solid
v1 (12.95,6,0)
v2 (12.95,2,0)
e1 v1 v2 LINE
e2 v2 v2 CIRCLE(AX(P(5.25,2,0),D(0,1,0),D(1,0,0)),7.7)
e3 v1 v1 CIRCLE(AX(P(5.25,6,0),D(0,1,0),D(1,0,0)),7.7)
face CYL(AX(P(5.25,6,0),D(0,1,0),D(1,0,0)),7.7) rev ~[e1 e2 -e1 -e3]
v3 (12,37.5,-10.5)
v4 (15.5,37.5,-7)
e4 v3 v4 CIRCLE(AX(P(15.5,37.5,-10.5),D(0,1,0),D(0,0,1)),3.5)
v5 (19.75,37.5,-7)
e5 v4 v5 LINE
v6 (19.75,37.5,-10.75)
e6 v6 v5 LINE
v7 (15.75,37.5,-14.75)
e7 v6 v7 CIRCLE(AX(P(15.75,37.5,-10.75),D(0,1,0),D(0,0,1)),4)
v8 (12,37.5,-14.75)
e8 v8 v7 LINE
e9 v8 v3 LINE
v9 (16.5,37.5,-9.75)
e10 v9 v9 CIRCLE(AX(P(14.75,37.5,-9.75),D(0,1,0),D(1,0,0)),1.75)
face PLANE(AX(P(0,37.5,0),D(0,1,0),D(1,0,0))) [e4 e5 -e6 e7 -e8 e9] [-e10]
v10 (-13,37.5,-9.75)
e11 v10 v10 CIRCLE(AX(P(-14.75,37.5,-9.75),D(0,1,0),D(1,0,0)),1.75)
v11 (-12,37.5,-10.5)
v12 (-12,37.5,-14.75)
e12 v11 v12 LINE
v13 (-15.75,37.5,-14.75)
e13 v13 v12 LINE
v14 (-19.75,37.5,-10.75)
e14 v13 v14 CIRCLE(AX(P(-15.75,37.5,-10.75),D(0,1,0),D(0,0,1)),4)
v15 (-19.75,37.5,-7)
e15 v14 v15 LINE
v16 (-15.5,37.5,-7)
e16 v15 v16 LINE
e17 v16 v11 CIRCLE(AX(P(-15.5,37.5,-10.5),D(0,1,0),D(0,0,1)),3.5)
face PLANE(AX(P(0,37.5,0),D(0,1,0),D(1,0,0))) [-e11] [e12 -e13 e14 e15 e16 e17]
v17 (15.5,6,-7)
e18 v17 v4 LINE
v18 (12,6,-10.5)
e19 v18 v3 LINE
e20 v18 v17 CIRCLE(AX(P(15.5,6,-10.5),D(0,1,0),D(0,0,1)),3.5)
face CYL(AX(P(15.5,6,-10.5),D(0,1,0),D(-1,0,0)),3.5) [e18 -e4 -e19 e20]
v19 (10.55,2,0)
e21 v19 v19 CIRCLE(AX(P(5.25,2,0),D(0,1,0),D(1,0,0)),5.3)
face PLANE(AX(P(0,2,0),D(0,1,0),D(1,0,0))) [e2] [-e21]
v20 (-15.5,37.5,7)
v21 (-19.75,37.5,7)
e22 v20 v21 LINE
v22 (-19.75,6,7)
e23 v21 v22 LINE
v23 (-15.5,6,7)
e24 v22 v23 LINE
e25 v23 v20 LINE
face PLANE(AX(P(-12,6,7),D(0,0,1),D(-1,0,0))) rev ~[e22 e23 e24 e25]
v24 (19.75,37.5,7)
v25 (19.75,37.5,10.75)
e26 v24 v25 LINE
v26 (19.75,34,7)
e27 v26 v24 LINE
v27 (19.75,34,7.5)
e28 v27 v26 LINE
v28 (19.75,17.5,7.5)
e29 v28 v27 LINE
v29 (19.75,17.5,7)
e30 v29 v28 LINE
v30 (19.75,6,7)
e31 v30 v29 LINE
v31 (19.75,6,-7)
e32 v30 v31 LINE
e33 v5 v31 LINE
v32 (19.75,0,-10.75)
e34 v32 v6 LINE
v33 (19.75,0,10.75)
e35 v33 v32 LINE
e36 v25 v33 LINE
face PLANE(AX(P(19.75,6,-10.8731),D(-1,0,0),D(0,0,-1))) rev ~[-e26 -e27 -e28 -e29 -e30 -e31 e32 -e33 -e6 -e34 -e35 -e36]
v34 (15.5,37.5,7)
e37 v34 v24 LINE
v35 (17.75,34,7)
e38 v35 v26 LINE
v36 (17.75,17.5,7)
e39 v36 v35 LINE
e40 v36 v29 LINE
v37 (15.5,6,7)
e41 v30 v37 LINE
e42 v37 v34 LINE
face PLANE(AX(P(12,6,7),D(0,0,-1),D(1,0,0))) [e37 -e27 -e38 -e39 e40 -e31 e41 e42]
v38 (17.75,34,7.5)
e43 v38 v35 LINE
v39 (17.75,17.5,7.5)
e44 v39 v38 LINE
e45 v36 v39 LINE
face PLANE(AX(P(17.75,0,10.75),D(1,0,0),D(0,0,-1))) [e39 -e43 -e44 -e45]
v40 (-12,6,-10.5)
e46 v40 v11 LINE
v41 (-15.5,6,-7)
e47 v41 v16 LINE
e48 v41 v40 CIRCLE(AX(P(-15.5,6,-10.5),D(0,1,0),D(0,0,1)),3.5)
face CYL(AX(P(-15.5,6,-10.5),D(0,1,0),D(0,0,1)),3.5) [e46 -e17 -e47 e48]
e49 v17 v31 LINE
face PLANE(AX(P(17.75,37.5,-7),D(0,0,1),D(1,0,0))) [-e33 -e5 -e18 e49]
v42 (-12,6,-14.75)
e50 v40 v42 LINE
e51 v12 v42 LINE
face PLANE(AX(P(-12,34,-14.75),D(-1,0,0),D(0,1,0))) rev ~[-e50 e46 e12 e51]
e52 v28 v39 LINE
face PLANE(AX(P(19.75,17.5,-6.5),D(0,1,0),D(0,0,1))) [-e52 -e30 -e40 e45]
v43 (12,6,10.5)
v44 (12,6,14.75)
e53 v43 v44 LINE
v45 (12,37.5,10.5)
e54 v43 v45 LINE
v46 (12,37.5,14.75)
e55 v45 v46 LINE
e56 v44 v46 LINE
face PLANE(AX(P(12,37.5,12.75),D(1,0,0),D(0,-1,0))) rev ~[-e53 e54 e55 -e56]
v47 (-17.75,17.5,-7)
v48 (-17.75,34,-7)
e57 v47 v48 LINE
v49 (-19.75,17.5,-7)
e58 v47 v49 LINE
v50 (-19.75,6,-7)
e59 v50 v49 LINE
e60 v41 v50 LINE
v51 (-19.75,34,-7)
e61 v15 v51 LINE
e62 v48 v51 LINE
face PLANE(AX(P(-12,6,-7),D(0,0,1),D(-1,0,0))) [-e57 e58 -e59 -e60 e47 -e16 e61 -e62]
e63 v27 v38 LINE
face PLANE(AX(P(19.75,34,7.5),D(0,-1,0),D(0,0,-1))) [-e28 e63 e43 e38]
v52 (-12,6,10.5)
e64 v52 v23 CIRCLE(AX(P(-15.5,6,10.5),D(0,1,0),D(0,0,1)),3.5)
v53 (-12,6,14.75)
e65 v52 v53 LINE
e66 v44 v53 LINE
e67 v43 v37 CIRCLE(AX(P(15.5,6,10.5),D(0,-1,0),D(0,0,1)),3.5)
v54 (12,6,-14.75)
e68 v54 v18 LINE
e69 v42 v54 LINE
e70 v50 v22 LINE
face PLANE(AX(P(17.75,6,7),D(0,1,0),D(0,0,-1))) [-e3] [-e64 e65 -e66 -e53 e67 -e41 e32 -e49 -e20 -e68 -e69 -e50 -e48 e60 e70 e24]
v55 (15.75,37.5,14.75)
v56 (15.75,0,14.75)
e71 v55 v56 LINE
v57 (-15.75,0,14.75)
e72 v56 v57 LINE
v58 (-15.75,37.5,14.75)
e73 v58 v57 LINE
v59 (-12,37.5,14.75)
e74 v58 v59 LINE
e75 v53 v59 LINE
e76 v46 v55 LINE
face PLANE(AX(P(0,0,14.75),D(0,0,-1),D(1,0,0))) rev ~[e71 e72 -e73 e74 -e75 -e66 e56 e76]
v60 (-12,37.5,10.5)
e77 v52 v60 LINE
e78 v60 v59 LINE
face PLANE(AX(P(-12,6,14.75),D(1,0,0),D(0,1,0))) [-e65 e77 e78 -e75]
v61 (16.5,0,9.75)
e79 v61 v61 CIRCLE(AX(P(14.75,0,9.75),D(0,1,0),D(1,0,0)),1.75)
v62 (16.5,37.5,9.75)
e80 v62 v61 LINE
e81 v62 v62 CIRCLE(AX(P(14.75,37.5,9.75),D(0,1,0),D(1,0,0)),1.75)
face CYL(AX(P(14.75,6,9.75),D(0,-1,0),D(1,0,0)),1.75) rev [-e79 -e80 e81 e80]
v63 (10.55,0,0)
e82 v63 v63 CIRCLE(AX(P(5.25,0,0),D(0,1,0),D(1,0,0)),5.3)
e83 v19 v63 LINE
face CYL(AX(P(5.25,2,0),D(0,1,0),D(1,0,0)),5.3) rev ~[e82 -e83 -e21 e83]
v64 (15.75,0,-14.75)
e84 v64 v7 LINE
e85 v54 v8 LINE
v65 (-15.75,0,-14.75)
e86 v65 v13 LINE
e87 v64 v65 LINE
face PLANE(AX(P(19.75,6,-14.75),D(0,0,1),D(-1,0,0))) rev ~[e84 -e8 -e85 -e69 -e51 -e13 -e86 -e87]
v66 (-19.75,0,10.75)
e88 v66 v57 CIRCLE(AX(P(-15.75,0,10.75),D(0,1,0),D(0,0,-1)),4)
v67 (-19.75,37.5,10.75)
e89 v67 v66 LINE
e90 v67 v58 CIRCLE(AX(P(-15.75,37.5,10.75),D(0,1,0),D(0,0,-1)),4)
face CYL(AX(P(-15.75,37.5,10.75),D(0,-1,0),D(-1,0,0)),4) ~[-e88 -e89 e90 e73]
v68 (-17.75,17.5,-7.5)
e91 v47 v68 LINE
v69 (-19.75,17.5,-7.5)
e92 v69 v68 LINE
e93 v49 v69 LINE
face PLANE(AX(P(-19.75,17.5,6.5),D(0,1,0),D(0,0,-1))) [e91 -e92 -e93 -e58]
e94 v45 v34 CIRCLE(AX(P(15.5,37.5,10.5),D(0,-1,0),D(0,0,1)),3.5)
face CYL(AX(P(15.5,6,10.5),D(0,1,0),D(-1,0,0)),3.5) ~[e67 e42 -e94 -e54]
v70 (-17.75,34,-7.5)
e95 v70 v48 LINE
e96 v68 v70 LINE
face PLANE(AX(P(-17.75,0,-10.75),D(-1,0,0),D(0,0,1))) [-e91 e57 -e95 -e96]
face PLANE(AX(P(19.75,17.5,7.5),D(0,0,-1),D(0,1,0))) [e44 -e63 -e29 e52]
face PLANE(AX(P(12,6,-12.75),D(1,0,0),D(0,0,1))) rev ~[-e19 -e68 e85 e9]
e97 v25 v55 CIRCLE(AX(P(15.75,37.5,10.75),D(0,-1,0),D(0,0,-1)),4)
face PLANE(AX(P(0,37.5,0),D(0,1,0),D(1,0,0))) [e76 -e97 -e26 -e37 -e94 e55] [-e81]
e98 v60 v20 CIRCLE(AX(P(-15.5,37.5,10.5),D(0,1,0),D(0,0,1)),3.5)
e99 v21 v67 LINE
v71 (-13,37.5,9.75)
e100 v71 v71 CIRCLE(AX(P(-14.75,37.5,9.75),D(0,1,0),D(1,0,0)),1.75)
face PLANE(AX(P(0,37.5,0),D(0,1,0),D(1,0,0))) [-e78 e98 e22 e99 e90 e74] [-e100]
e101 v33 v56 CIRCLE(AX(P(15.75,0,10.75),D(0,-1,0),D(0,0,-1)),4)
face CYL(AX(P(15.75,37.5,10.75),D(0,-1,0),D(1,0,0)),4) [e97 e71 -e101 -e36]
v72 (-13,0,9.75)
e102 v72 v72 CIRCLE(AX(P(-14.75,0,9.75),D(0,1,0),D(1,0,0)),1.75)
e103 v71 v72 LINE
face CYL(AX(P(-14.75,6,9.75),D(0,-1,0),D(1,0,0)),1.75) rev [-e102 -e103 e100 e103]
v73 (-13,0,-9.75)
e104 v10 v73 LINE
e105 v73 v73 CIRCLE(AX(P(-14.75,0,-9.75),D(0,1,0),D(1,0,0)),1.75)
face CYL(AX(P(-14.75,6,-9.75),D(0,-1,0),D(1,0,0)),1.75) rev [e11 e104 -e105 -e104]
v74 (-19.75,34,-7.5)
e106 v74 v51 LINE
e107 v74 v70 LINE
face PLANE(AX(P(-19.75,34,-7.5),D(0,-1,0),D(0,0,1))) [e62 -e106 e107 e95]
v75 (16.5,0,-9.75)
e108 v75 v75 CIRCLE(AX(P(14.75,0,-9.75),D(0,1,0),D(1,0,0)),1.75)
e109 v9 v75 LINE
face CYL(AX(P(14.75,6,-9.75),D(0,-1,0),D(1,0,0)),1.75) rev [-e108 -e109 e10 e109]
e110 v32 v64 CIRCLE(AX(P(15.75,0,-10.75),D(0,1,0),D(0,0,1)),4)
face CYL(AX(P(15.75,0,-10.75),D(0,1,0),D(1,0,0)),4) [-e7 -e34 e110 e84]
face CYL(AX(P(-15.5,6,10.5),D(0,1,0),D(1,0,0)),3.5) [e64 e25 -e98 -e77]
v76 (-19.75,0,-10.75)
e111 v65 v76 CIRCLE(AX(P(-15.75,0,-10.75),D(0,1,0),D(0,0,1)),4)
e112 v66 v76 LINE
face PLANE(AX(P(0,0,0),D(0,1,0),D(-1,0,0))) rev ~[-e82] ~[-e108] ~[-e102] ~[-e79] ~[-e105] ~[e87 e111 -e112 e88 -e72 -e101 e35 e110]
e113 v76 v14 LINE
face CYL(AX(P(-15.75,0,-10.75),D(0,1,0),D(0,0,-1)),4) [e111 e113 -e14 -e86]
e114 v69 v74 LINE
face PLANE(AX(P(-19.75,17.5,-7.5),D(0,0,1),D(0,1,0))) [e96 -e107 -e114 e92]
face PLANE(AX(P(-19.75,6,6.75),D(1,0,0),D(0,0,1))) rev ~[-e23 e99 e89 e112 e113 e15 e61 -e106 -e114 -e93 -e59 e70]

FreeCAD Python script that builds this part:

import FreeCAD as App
import Part
import Sketcher
Q = App.Units.Quantity


def edges_at(feature, points):
    """Names of the edges that pass closest to the given points."""
    edges = feature.Shape.Edges
    near = lambda p: min(range(len(edges)), key=lambda i: edges[i].distToShape(Part.Vertex(*p))[0])
    return sorted({f"Edge{near(p) + 1}" for p in points})


def add_polygon(sketch, points):
    """Adds a closed chain of lines whose ends are joined by coincident constraints."""
    first, n = sketch.GeometryCount, len(points)
    for a, b in zip(points, points[1:] + points[:1]):
        sketch.addGeometry(Part.LineSegment(App.Vector(*a, 0), App.Vector(*b, 0)), False)
    for i in range(n):
        sketch.addConstraint(Sketcher.Constraint("Coincident", first + i, 2, first + (i + 1) % n, 1))

doc = App.newDocument("Part")
body = doc.addObject("PartDesign::Body", "Body")

sketch1 = doc.addObject("Sketcher::SketchObject", "Sketch")
body.addObject(sketch1)
sketch1.AttachmentSupport = (doc.XZ_Plane, [""])
sketch1.MapMode = "FlatFace"
add_polygon(sketch1, [(19.75, -14.75), (-19.75, -14.75), (-19.75, 14.75), (19.75, 14.75)])
sketch1.addConstraint([
    Sketcher.Constraint("Horizontal", 0),
    Sketcher.Constraint("Vertical", 1),
    Sketcher.Constraint("Horizontal", 2),
    Sketcher.Constraint("Vertical", 3),
    Sketcher.Constraint("Symmetric", 0, 2, 2, 2, -1, 1),
    Sketcher.Constraint("DistanceX", 0, 2, 0, 1, Q("39.5 mm")),
    Sketcher.Constraint("DistanceY", 1, 1, 1, 2, Q("29.5 mm")),
])
pad1 = doc.addObject("PartDesign::Pad", "Pad")
body.addObject(pad1)
pad1.Profile = sketch1
pad1.Length = 6
pad1.Reversed = True

sketch2 = doc.addObject("Sketcher::SketchObject", "Sketch001")
body.addObject(sketch2)
sketch2.AttachmentSupport = (doc.XZ_Plane, [""])
sketch2.MapMode = "FlatFace"
sketch2.AttachmentOffset = App.Placement(App.Vector(0, 0, -6), App.Rotation())
add_polygon(sketch2, [(19.75, 14.75), (19.75, -14.75), (-19.75, -14.75), (-19.75, 14.75)])
add_polygon(sketch2, [(-17.75, -12.75), (17.75, -12.75), (17.75, 12.75), (-17.75, 12.75)])
sketch2.addConstraint([
    Sketcher.Constraint("Vertical", 0),
    Sketcher.Constraint("Horizontal", 1),
    Sketcher.Constraint("Vertical", 2),
    Sketcher.Constraint("Horizontal", 3),
    Sketcher.Constraint("Horizontal", 4),
    Sketcher.Constraint("Vertical", 5),
    Sketcher.Constraint("Horizontal", 6),
    Sketcher.Constraint("Vertical", 7),
    Sketcher.Constraint("Symmetric", 0, 2, 2, 2, -1, 1),
    Sketcher.Constraint("Symmetric", 4, 2, 6, 2, -1, 1),
    Sketcher.Constraint("DistanceX", 4, 2, 0, 2, Q("2 mm")),
    Sketcher.Constraint("DistanceY", 0, 2, 4, 2, Q("2 mm")),
    Sketcher.Constraint("DistanceX", 1, 2, 1, 1, Q("39.5 mm")),
    Sketcher.Constraint("DistanceY", 0, 2, 0, 1, Q("29.5 mm")),
])
pad2 = doc.addObject("PartDesign::Pad", "Pad001")
body.addObject(pad2)
pad2.Profile = sketch2
pad2.Length = 31.5
pad2.Reversed = True

sketch3 = doc.addObject("Sketcher::SketchObject", "Sketch002")
body.addObject(sketch3)
sketch3.AttachmentSupport = (doc.XZ_Plane, [""])
sketch3.MapMode = "FlatFace"
sketch3.AttachmentOffset = App.Placement(App.Vector(0, 0, -6), App.Rotation())
sketch3.addGeometry(Part.Circle(App.Vector(5.25, 0, 0), App.Vector(0, 0, 1), 7.7), False)
sketch3.addConstraint([
    Sketcher.Constraint("PointOnObject", 0, 3, -1),
    Sketcher.Constraint("Diameter", 0, Q("15.4 mm")),
    Sketcher.Constraint("DistanceX", -1, 1, 0, 3, Q("5.25 mm")),
])
pocket1 = doc.addObject("PartDesign::Pocket", "Pocket")
body.addObject(pocket1)
pocket1.Profile = sketch3
pocket1.Length = 4
pocket1.Reversed = True

sketch4 = doc.addObject("Sketcher::SketchObject", "Sketch003")
body.addObject(sketch4)
sketch4.AttachmentSupport = (doc.XZ_Plane, [""])
sketch4.MapMode = "FlatFace"
sketch4.AttachmentOffset = App.Placement(App.Vector(0, 0, -2), App.Rotation())
sketch4.addGeometry(Part.Circle(App.Vector(5.25, 0, 0), App.Vector(0, 0, 1), 5.3), False)
sketch4.addConstraint([
    Sketcher.Constraint("PointOnObject", 0, 3, -1),
    Sketcher.Constraint("Diameter", 0, Q("10.6 mm")),
    Sketcher.Constraint("DistanceX", -1, 1, 0, 3, Q("5.25 mm")),
])
pocket2 = doc.addObject("PartDesign::Pocket", "Pocket001")
body.addObject(pocket2)
pocket2.Profile = sketch4
pocket2.Length = 2
pocket2.Reversed = True

sketch5 = doc.addObject("Sketcher::SketchObject", "Sketch004")
body.addObject(sketch5)
sketch5.AttachmentSupport = (doc.XZ_Plane, [""])
sketch5.MapMode = "FlatFace"
sketch5.AttachmentOffset = App.Placement(App.Vector(0, 0, -6), App.Rotation())
add_polygon(sketch5, [(17.75, 12.75), (17.75, 7), (12, 7), (12, 12.75)])
sketch5.addGeometry(Part.Circle(App.Vector(14.75, 9.75, 0), App.Vector(0, 0, 1), 1.75), False)
sketch5.addConstraint([
    Sketcher.Constraint("Vertical", 0),
    Sketcher.Constraint("Horizontal", 1),
    Sketcher.Constraint("Vertical", 2),
    Sketcher.Constraint("Horizontal", 3),
    Sketcher.Constraint("Equal", 3, 0),
    Sketcher.Constraint("Diameter", 4, Q("3.5 mm")),
    Sketcher.Constraint("DistanceY", -1, 1, 0, 2, Q("7 mm")),
    Sketcher.Constraint("DistanceX", -1, 1, 1, 2, Q("12 mm")),
    Sketcher.Constraint("DistanceX", 4, 3, 0, 2, Q("3 mm")),
    Sketcher.Constraint("DistanceY", 4, 3, 2, 2, Q("3 mm")),
    Sketcher.Constraint("DistanceX", 1, 2, 1, 1, Q("5.75 mm")),
])
pad3 = doc.addObject("PartDesign::Pad", "Pad002")
body.addObject(pad3)
pad3.Profile = sketch5
pad3.Length = 31.5
pad3.Reversed = True

sketch6 = doc.addObject("Sketcher::SketchObject", "Sketch005")
body.addObject(sketch6)
sketch6.AttachmentSupport = (doc.XZ_Plane, [""])
sketch6.MapMode = "FlatFace"
sketch6.AttachmentOffset = App.Placement(App.Vector(0, 0, -6), App.Rotation())
add_polygon(sketch6, [(-12, -7), (-12, -12.75), (-17.75, -12.75), (-17.75, -7)])
sketch6.addGeometry(Part.Circle(App.Vector(-14.75, -9.75, 0), App.Vector(0, 0, 1), 1.75), False)
add_polygon(sketch6, [(17.75, -12.75), (12, -12.75), (12, -7), (17.75, -7)])
sketch6.addGeometry(Part.Circle(App.Vector(14.75, -9.75, 0), App.Vector(0, 0, 1), 1.75), False)
add_polygon(sketch6, [(-12, 7), (-17.75, 7), (-17.75, 12.75), (-12, 12.75)])
sketch6.addGeometry(Part.Circle(App.Vector(-14.75, 9.75, 0), App.Vector(0, 0, 1), 1.75), False)
sketch6.addConstraint([
    Sketcher.Constraint("Vertical", 0),
    Sketcher.Constraint("Horizontal", 1),
    Sketcher.Constraint("Vertical", 2),
    Sketcher.Constraint("Horizontal", 3),
    Sketcher.Constraint("Horizontal", 5),
    Sketcher.Constraint("Vertical", 6),
    Sketcher.Constraint("Horizontal", 7),
    Sketcher.Constraint("Vertical", 8),
    Sketcher.Constraint("Horizontal", 10),
    Sketcher.Constraint("Vertical", 11),
    Sketcher.Constraint("Horizontal", 12),
    Sketcher.Constraint("Vertical", 13),
    Sketcher.Constraint("Equal", 4, 9),
    Sketcher.Constraint("Equal", 9, 14),
    Sketcher.Constraint("Symmetric", 9, 3, 14, 3, -1, 1),
    Sketcher.Constraint("Symmetric", 7, 2, 10, 2, -1, 1),
    Sketcher.Constraint("Symmetric", 5, 2, 12, 2, -1, 1),
    Sketcher.Constraint("Symmetric", 4, 3, 9, 3, -2),
    Sketcher.Constraint("Symmetric", 0, 2, 5, 2, -2),
    Sketcher.Constraint("Symmetric", 2, 2, 7, 2, -2),
    Sketcher.Constraint("Equal", 12, 0),
    Sketcher.Constraint("Diameter", 4, Q("3.5 mm")),
    Sketcher.Constraint("DistanceX", 0, 2, -1, 1, Q("12 mm")),
    Sketcher.Constraint("DistanceY", 2, 2, -1, 1, Q("7 mm")),
    Sketcher.Constraint("DistanceY", 0, 2, 4, 3, Q("3 mm")),
    Sketcher.Constraint("DistanceX", 1, 2, 4, 3, Q("3 mm")),
    Sketcher.Constraint("DistanceX", 1, 2, 1, 1, Q("5.75 mm")),
])
pad4 = doc.addObject("PartDesign::Pad", "Pad003")
body.addObject(pad4)
pad4.Profile = sketch6
pad4.Length = 31.5
pad4.Reversed = True

sketch7 = doc.addObject("Sketcher::SketchObject", "Sketch006")
body.addObject(sketch7)
sketch7.AttachmentSupport = (doc.XZ_Plane, [""])
sketch7.MapMode = "FlatFace"
sketch7.AttachmentOffset = App.Placement(App.Vector(0, 0, -6), App.Rotation())
sketch7.addGeometry([
    Part.Circle(App.Vector(-14.75, -9.75, 0), App.Vector(0, 0, 1), 1.75),
    Part.Circle(App.Vector(-14.75, 9.75, 0), App.Vector(0, 0, 1), 1.75),
    Part.Circle(App.Vector(14.75, 9.75, 0), App.Vector(0, 0, 1), 1.75),
    Part.Circle(App.Vector(14.75, -9.75, 0), App.Vector(0, 0, 1), 1.75),
], False)
sketch7.addConstraint([
    Sketcher.Constraint("Equal", 0, 1),
    Sketcher.Constraint("Equal", 1, 2),
    Sketcher.Constraint("Equal", 2, 3),
    Sketcher.Constraint("Symmetric", 0, 3, 2, 3, -1, 1),
    Sketcher.Constraint("Symmetric", 1, 3, 3, 3, -1, 1),
    Sketcher.Constraint("Symmetric", 1, 3, 2, 3, -2),
    Sketcher.Constraint("Diameter", 0, Q("3.5 mm")),
    Sketcher.Constraint("DistanceY", 0, 3, 1, 3, Q("19.5 mm")),
    Sketcher.Constraint("DistanceX", 1, 3, 2, 3, Q("29.5 mm")),
])
pocket3 = doc.addObject("PartDesign::Pocket", "Pocket002")
body.addObject(pocket3)
pocket3.Profile = sketch7
pocket3.Length = 6
pocket3.Reversed = True
doc.recompute()

fillet = doc.addObject("PartDesign::Fillet", "Fillet")
body.addObject(fillet)
fillet.Base = (pocket3, edges_at(pocket3, [
    (-12, 21.75, -7),
    (12, 21.75, -7),
    (-12, 21.75, 7),
    (12, 21.75, 7),
]))
fillet.Radius = 3.5
doc.recompute()

fillet2 = doc.addObject("PartDesign::Fillet", "Fillet001")
body.addObject(fillet2)
fillet2.Base = (fillet, edges_at(fillet, [
    (19.75, 18.75, 14.75),
    (19.75, 18.75, -14.75),
    (-19.75, 18.75, -14.75),
    (-19.75, 18.75, 14.75),
]))
fillet2.Radius = 4

sketch8 = doc.addObject("Sketcher::SketchObject", "Sketch007")
body.addObject(sketch8)
sketch8.AttachmentSupport = (doc.XY_Plane, [""])
sketch8.MapMode = "FlatFace"
sketch8.AttachmentOffset = App.Placement(App.Vector(0, 0, -14.75), App.Rotation())
add_polygon(sketch8, [(-12, 34), (12, 34), (12, 6), (-12, 6)])
sketch8.addConstraint([
    Sketcher.Constraint("Horizontal", 0),
    Sketcher.Constraint("Vertical", 1),
    Sketcher.Constraint("Horizontal", 2),
    Sketcher.Constraint("Vertical", 3),
    Sketcher.Constraint("DistanceX", 0, 1, 0, 2, Q("24 mm")),
    Sketcher.Constraint("DistanceY", 1, 2, 1, 1, Q("28 mm")),
    Sketcher.Constraint("DistanceX", -1, 1, 0, 2, Q("12 mm")),
    Sketcher.Constraint("DistanceY", -1, 1, 0, 2, Q("34 mm")),
])
pocket4 = doc.addObject("PartDesign::Pocket", "Pocket003")
body.addObject(pocket4)
pocket4.Profile = sketch8
pocket4.Length = 2
pocket4.Reversed = True

sketch9 = doc.addObject("Sketcher::SketchObject", "Sketch008")
body.addObject(sketch9)
sketch9.AttachmentSupport = (doc.XY_Plane, [""])
sketch9.MapMode = "FlatFace"
sketch9.AttachmentOffset = App.Placement(App.Vector(0, 0, 14.75), App.Rotation())
add_polygon(sketch9, [(12, 34), (-12, 34), (-12, 17.5), (12, 17.5)])
sketch9.addConstraint([
    Sketcher.Constraint("Horizontal", 0),
    Sketcher.Constraint("Vertical", 1),
    Sketcher.Constraint("Horizontal", 2),
    Sketcher.Constraint("Vertical", 3),
    Sketcher.Constraint("DistanceY", 1, 2, 1, 1, Q("16.5 mm")),
    Sketcher.Constraint("DistanceX", 0, 2, 0, 1, Q("24 mm")),
    Sketcher.Constraint("DistanceX", 0, 2, -1, 1, Q("12 mm")),
    Sketcher.Constraint("DistanceY", -1, 1, 0, 2, Q("34 mm")),
])
pocket5 = doc.addObject("PartDesign::Pocket", "Pocket004")
body.addObject(pocket5)
pocket5.Profile = sketch9
pocket5.Length = 2

sketch10 = doc.addObject("Sketcher::SketchObject", "Sketch009")
body.addObject(sketch10)
sketch10.AttachmentSupport = (doc.YZ_Plane, [""])
sketch10.MapMode = "FlatFace"
sketch10.AttachmentOffset = App.Placement(App.Vector(0, 0, -19.75), App.Rotation())
add_polygon(sketch10, [(34, 6.5), (34, -7.5), (17.5, -7.5), (17.5, 6.5)])
sketch10.addConstraint([
    Sketcher.Constraint("Vertical", 0),
    Sketcher.Constraint("Horizontal", 1),
    Sketcher.Constraint("Vertical", 2),
    Sketcher.Constraint("Horizontal", 3),
    Sketcher.Constraint("DistanceY", 0, 2, 0, 1, Q("14 mm")),
    Sketcher.Constraint("DistanceX", 1, 2, 1, 1, Q("16.5 mm")),
    Sketcher.Constraint("DistanceX", -1, 1, 0, 2, Q("34 mm")),
    Sketcher.Constraint("DistanceY", 0, 2, -1, 1, Q("7.5 mm")),
])
pocket6 = doc.addObject("PartDesign::Pocket", "Pocket005")
body.addObject(pocket6)
pocket6.Profile = sketch10
pocket6.Length = 2
pocket6.Reversed = True

sketch11 = doc.addObject("Sketcher::SketchObject", "Sketch010")
body.addObject(sketch11)
sketch11.AttachmentSupport = (doc.YZ_Plane, [""])
sketch11.MapMode = "FlatFace"
sketch11.AttachmentOffset = App.Placement(App.Vector(0, 0, 19.75), App.Rotation())
add_polygon(sketch11, [(34, -6.5), (34, 7.5), (17.5, 7.5), (17.5, -6.5)])
sketch11.addConstraint([
    Sketcher.Constraint("Vertical", 0),
    Sketcher.Constraint("Horizontal", 1),
    Sketcher.Constraint("Vertical", 2),
    Sketcher.Constraint("Horizontal", 3),
    Sketcher.Constraint("DistanceY", 0, 1, 0, 2, Q("14 mm")),
    Sketcher.Constraint("DistanceX", 1, 2, 1, 1, Q("16.5 mm")),
    Sketcher.Constraint("DistanceX", -1, 1, 0, 2, Q("34 mm")),
    Sketcher.Constraint("DistanceY", -1, 1, 0, 2, Q("7.5 mm")),
])
pocket7 = doc.addObject("PartDesign::Pocket", "Pocket006")
body.addObject(pocket7)
pocket7.Profile = sketch11
pocket7.Length = 2

sketch12 = doc.addObject("Sketcher::SketchObject", "Sketch011")
body.addObject(sketch12)
sketch12.AttachmentSupport = (doc.XY_Plane, [""])
sketch12.MapMode = "FlatFace"
sketch12.AttachmentOffset = App.Placement(App.Vector(0, 0, -14.75), App.Rotation())
add_polygon(sketch12, [(12, 34), (-12, 34), (-12, 37.5), (12, 37.5)])
sketch12.addConstraint([
    Sketcher.Constraint("Horizontal", 0),
    Sketcher.Constraint("Vertical", 1),
    Sketcher.Constraint("Horizontal", 2),
    Sketcher.Constraint("Vertical", 3),
    Sketcher.Constraint("DistanceX", 0, 2, 0, 1, Q("24 mm")),
    Sketcher.Constraint("DistanceY", 1, 1, 1, 2, Q("3.5 mm")),
    Sketcher.Constraint("DistanceX", 0, 2, -1, 1, Q("12 mm")),
    Sketcher.Constraint("DistanceY", -1, 1, 0, 2, Q("34 mm")),
])
pocket8 = doc.addObject("PartDesign::Pocket", "Pocket007")
body.addObject(pocket8)
pocket8.Profile = sketch12
pocket8.Length = 2
pocket8.Reversed = True

sketch13 = doc.addObject("Sketcher::SketchObject", "Sketch012")
body.addObject(sketch13)
sketch13.AttachmentSupport = (doc.XY_Plane, [""])
sketch13.MapMode = "FlatFace"
sketch13.AttachmentOffset = App.Placement(App.Vector(0, 0, 12.75), App.Rotation())
add_polygon(sketch13, [(-12, 37.5), (12, 37.5), (12, 33.9973), (-12, 33.9973)])
sketch13.addConstraint([
    Sketcher.Constraint("Horizontal", 0),
    Sketcher.Constraint("Vertical", 1),
    Sketcher.Constraint("Horizontal", 2),
    Sketcher.Constraint("Vertical", 3),
    Sketcher.Constraint("DistanceX", 0, 1, 0, 2, Q("24 mm")),
    Sketcher.Constraint("DistanceX", -1, 1, 0, 2, Q("12 mm")),
    Sketcher.Constraint("DistanceY", -1, 1, 0, 2, Q("37.5 mm")),
    Sketcher.Constraint("DistanceY", 1, 2, 1, 1, Q("3.5027 mm")),
])
pocket9 = doc.addObject("PartDesign::Pocket", "Pocket008")
body.addObject(pocket9)
pocket9.Profile = sketch13
pocket9.Length = 2
pocket9.Reversed = True

sketch14 = doc.addObject("Sketcher::SketchObject", "Sketch013")
body.addObject(sketch14)
sketch14.AttachmentSupport = (doc.XY_Plane, [""])
sketch14.MapMode = "FlatFace"
sketch14.AttachmentOffset = App.Placement(App.Vector(0, 0, 14.75), App.Rotation())
add_polygon(sketch14, [(-12, 17.5), (-12, 6), (12, 6), (12, 17.5)])
sketch14.addConstraint([
    Sketcher.Constraint("Vertical", 0),
    Sketcher.Constraint("Horizontal", 1),
    Sketcher.Constraint("Vertical", 2),
    Sketcher.Constraint("Horizontal", 3),
    Sketcher.Constraint("DistanceX", 1, 1, 1, 2, Q("24 mm")),
    Sketcher.Constraint("DistanceY", 0, 2, 0, 1, Q("11.5 mm")),
    Sketcher.Constraint("DistanceX", 0, 2, -1, 1, Q("12 mm")),
    Sketcher.Constraint("DistanceY", -1, 1, 0, 2, Q("6 mm")),
])
pocket10 = doc.addObject("PartDesign::Pocket", "Pocket009")
body.addObject(pocket10)
pocket10.Profile = sketch14
pocket10.Length = 2

sketch15 = doc.addObject("Sketcher::SketchObject", "Sketch014")
body.addObject(sketch15)
sketch15.AttachmentSupport = (doc.YZ_Plane, [""])
sketch15.MapMode = "FlatFace"
sketch15.AttachmentOffset = App.Placement(App.Vector(0, 0, -17.75), App.Rotation())
add_polygon(sketch15, [(34, 7), (34, -7), (37.5, -7), (37.5, 7)])
sketch15.addConstraint([
    Sketcher.Constraint("Vertical", 0),
    Sketcher.Constraint("Horizontal", 1),
    Sketcher.Constraint("Vertical", 2),
    Sketcher.Constraint("Horizontal", 3),
    Sketcher.Constraint("DistanceY", 0, 2, 0, 1, Q("14 mm")),
    Sketcher.Constraint("DistanceX", 1, 1, 1, 2, Q("3.5 mm")),
    Sketcher.Constraint("DistanceX", -1, 1, 0, 2, Q("34 mm")),
    Sketcher.Constraint("DistanceY", 0, 2, -1, 1, Q("7 mm")),
])
pocket11 = doc.addObject("PartDesign::Pocket", "Pocket010")
body.addObject(pocket11)
pocket11.Profile = sketch15
pocket11.Length = 2

sketch16 = doc.addObject("Sketcher::SketchObject", "Sketch015")
body.addObject(sketch16)
sketch16.AttachmentSupport = (doc.YZ_Plane, [""])
sketch16.MapMode = "FlatFace"
sketch16.AttachmentOffset = App.Placement(App.Vector(0, 0, -17.75), App.Rotation())
add_polygon(sketch16, [(6, 7), (6, -7), (17.5, -7), (17.5, 7)])
sketch16.addConstraint([
    Sketcher.Constraint("Vertical", 0),
    Sketcher.Constraint("Horizontal", 1),
    Sketcher.Constraint("Vertical", 2),
    Sketcher.Constraint("Horizontal", 3),
    Sketcher.Constraint("DistanceY", 0, 2, 0, 1, Q("14 mm")),
    Sketcher.Constraint("DistanceX", 1, 1, 1, 2, Q("11.5 mm")),
    Sketcher.Constraint("DistanceX", -1, 1, 0, 2, Q("6 mm")),
    Sketcher.Constraint("DistanceY", 0, 2, -1, 1, Q("7 mm")),
])
pocket12 = doc.addObject("PartDesign::Pocket", "Pocket011")
body.addObject(pocket12)
pocket12.Profile = sketch16
pocket12.Length = 2

sketch17 = doc.addObject("Sketcher::SketchObject", "Sketch016")
body.addObject(sketch17)
sketch17.AttachmentSupport = (doc.XY_Plane, [""])
sketch17.MapMode = "FlatFace"
sketch17.AttachmentOffset = App.Placement(App.Vector(0, 0, 6.5), App.Rotation())
add_polygon(sketch17, [(-19.75, 34), (-17.75, 34), (-17.75, 17.5), (-19.75, 17.5)])
sketch17.addConstraint([
    Sketcher.Constraint("Horizontal", 0),
    Sketcher.Constraint("Vertical", 1),
    Sketcher.Constraint("Horizontal", 2),
    Sketcher.Constraint("Vertical", 3),
    Sketcher.Constraint("DistanceX", 0, 1, 0, 2, Q("2 mm")),
    Sketcher.Constraint("DistanceY", 1, 2, 1, 1, Q("16.5 mm")),
    Sketcher.Constraint("DistanceY", -1, 1, 0, 2, Q("34 mm")),
    Sketcher.Constraint("DistanceX", 0, 2, -1, 1, Q("17.75 mm")),
])
pocket13 = doc.addObject("PartDesign::Pocket", "Pocket012")
body.addObject(pocket13)
pocket13.Profile = sketch17
pocket13.Length = 0.5
pocket13.Reversed = True

sketch18 = doc.addObject("Sketcher::SketchObject", "Sketch017")
body.addObject(sketch18)
sketch18.AttachmentSupport = (doc.YZ_Plane, [""])
sketch18.MapMode = "FlatFace"
sketch18.AttachmentOffset = App.Placement(App.Vector(0, 0, 17.75), App.Rotation())
add_polygon(sketch18, [(6, -7), (6, 7), (17.5, 7), (17.5, -7)])
sketch18.addConstraint([
    Sketcher.Constraint("Vertical", 0),
    Sketcher.Constraint("Horizontal", 1),
    Sketcher.Constraint("Vertical", 2),
    Sketcher.Constraint("Horizontal", 3),
    Sketcher.Constraint("DistanceY", 0, 1, 0, 2, Q("14 mm")),
    Sketcher.Constraint("DistanceX", 1, 1, 1, 2, Q("11.5 mm")),
    Sketcher.Constraint("DistanceX", -1, 1, 0, 2, Q("6 mm")),
    Sketcher.Constraint("DistanceY", -1, 1, 0, 2, Q("7 mm")),
])
pocket14 = doc.addObject("PartDesign::Pocket", "Pocket013")
body.addObject(pocket14)
pocket14.Profile = sketch18
pocket14.Length = 2
pocket14.Reversed = True

sketch19 = doc.addObject("Sketcher::SketchObject", "Sketch018")
body.addObject(sketch19)
sketch19.AttachmentSupport = (doc.YZ_Plane, [""])
sketch19.MapMode = "FlatFace"
sketch19.AttachmentOffset = App.Placement(App.Vector(0, 0, 17.75), App.Rotation())
add_polygon(sketch19, [(34, -6.5), (34, 7), (37.5, 7), (37.5, -6.5)])
sketch19.addConstraint([
    Sketcher.Constraint("Vertical", 0),
    Sketcher.Constraint("Horizontal", 1),
    Sketcher.Constraint("Vertical", 2),
    Sketcher.Constraint("Horizontal", 3),
    Sketcher.Constraint("DistanceX", 1, 1, 1, 2, Q("3.5 mm")),
    Sketcher.Constraint("DistanceY", 0, 1, 0, 2, Q("13.5 mm")),
    Sketcher.Constraint("DistanceX", -1, 1, 0, 2, Q("34 mm")),
    Sketcher.Constraint("DistanceY", -1, 1, 0, 2, Q("7 mm")),
])
pocket15 = doc.addObject("PartDesign::Pocket", "Pocket014")
body.addObject(pocket15)
pocket15.Profile = sketch19
pocket15.Length = 2
pocket15.Reversed = True

sketch20 = doc.addObject("Sketcher::SketchObject", "Sketch019")
body.addObject(sketch20)
sketch20.AttachmentSupport = (doc.XY_Plane, [""])
sketch20.MapMode = "FlatFace"
sketch20.AttachmentOffset = App.Placement(App.Vector(0, 0, -6.5), App.Rotation())
add_polygon(sketch20, [(17.75, 37.5), (17.75, 17.5), (19.75, 17.5), (19.75, 37.5)])
sketch20.addConstraint([
    Sketcher.Constraint("Vertical", 0),
    Sketcher.Constraint("Horizontal", 1),
    Sketcher.Constraint("Vertical", 2),
    Sketcher.Constraint("Horizontal", 3),
    Sketcher.Constraint("DistanceX", 1, 1, 1, 2, Q("2 mm")),
    Sketcher.Constraint("DistanceY", 0, 2, 0, 1, Q("20 mm")),
    Sketcher.Constraint("DistanceY", -1, 1, 0, 2, Q("17.5 mm")),
    Sketcher.Constraint("DistanceX", -1, 1, 0, 2, Q("17.75 mm")),
])
pocket16 = doc.addObject("PartDesign::Pocket", "Pocket015")
body.addObject(pocket16)
pocket16.Profile = sketch20
pocket16.Length = 0.5

doc.recompute()
